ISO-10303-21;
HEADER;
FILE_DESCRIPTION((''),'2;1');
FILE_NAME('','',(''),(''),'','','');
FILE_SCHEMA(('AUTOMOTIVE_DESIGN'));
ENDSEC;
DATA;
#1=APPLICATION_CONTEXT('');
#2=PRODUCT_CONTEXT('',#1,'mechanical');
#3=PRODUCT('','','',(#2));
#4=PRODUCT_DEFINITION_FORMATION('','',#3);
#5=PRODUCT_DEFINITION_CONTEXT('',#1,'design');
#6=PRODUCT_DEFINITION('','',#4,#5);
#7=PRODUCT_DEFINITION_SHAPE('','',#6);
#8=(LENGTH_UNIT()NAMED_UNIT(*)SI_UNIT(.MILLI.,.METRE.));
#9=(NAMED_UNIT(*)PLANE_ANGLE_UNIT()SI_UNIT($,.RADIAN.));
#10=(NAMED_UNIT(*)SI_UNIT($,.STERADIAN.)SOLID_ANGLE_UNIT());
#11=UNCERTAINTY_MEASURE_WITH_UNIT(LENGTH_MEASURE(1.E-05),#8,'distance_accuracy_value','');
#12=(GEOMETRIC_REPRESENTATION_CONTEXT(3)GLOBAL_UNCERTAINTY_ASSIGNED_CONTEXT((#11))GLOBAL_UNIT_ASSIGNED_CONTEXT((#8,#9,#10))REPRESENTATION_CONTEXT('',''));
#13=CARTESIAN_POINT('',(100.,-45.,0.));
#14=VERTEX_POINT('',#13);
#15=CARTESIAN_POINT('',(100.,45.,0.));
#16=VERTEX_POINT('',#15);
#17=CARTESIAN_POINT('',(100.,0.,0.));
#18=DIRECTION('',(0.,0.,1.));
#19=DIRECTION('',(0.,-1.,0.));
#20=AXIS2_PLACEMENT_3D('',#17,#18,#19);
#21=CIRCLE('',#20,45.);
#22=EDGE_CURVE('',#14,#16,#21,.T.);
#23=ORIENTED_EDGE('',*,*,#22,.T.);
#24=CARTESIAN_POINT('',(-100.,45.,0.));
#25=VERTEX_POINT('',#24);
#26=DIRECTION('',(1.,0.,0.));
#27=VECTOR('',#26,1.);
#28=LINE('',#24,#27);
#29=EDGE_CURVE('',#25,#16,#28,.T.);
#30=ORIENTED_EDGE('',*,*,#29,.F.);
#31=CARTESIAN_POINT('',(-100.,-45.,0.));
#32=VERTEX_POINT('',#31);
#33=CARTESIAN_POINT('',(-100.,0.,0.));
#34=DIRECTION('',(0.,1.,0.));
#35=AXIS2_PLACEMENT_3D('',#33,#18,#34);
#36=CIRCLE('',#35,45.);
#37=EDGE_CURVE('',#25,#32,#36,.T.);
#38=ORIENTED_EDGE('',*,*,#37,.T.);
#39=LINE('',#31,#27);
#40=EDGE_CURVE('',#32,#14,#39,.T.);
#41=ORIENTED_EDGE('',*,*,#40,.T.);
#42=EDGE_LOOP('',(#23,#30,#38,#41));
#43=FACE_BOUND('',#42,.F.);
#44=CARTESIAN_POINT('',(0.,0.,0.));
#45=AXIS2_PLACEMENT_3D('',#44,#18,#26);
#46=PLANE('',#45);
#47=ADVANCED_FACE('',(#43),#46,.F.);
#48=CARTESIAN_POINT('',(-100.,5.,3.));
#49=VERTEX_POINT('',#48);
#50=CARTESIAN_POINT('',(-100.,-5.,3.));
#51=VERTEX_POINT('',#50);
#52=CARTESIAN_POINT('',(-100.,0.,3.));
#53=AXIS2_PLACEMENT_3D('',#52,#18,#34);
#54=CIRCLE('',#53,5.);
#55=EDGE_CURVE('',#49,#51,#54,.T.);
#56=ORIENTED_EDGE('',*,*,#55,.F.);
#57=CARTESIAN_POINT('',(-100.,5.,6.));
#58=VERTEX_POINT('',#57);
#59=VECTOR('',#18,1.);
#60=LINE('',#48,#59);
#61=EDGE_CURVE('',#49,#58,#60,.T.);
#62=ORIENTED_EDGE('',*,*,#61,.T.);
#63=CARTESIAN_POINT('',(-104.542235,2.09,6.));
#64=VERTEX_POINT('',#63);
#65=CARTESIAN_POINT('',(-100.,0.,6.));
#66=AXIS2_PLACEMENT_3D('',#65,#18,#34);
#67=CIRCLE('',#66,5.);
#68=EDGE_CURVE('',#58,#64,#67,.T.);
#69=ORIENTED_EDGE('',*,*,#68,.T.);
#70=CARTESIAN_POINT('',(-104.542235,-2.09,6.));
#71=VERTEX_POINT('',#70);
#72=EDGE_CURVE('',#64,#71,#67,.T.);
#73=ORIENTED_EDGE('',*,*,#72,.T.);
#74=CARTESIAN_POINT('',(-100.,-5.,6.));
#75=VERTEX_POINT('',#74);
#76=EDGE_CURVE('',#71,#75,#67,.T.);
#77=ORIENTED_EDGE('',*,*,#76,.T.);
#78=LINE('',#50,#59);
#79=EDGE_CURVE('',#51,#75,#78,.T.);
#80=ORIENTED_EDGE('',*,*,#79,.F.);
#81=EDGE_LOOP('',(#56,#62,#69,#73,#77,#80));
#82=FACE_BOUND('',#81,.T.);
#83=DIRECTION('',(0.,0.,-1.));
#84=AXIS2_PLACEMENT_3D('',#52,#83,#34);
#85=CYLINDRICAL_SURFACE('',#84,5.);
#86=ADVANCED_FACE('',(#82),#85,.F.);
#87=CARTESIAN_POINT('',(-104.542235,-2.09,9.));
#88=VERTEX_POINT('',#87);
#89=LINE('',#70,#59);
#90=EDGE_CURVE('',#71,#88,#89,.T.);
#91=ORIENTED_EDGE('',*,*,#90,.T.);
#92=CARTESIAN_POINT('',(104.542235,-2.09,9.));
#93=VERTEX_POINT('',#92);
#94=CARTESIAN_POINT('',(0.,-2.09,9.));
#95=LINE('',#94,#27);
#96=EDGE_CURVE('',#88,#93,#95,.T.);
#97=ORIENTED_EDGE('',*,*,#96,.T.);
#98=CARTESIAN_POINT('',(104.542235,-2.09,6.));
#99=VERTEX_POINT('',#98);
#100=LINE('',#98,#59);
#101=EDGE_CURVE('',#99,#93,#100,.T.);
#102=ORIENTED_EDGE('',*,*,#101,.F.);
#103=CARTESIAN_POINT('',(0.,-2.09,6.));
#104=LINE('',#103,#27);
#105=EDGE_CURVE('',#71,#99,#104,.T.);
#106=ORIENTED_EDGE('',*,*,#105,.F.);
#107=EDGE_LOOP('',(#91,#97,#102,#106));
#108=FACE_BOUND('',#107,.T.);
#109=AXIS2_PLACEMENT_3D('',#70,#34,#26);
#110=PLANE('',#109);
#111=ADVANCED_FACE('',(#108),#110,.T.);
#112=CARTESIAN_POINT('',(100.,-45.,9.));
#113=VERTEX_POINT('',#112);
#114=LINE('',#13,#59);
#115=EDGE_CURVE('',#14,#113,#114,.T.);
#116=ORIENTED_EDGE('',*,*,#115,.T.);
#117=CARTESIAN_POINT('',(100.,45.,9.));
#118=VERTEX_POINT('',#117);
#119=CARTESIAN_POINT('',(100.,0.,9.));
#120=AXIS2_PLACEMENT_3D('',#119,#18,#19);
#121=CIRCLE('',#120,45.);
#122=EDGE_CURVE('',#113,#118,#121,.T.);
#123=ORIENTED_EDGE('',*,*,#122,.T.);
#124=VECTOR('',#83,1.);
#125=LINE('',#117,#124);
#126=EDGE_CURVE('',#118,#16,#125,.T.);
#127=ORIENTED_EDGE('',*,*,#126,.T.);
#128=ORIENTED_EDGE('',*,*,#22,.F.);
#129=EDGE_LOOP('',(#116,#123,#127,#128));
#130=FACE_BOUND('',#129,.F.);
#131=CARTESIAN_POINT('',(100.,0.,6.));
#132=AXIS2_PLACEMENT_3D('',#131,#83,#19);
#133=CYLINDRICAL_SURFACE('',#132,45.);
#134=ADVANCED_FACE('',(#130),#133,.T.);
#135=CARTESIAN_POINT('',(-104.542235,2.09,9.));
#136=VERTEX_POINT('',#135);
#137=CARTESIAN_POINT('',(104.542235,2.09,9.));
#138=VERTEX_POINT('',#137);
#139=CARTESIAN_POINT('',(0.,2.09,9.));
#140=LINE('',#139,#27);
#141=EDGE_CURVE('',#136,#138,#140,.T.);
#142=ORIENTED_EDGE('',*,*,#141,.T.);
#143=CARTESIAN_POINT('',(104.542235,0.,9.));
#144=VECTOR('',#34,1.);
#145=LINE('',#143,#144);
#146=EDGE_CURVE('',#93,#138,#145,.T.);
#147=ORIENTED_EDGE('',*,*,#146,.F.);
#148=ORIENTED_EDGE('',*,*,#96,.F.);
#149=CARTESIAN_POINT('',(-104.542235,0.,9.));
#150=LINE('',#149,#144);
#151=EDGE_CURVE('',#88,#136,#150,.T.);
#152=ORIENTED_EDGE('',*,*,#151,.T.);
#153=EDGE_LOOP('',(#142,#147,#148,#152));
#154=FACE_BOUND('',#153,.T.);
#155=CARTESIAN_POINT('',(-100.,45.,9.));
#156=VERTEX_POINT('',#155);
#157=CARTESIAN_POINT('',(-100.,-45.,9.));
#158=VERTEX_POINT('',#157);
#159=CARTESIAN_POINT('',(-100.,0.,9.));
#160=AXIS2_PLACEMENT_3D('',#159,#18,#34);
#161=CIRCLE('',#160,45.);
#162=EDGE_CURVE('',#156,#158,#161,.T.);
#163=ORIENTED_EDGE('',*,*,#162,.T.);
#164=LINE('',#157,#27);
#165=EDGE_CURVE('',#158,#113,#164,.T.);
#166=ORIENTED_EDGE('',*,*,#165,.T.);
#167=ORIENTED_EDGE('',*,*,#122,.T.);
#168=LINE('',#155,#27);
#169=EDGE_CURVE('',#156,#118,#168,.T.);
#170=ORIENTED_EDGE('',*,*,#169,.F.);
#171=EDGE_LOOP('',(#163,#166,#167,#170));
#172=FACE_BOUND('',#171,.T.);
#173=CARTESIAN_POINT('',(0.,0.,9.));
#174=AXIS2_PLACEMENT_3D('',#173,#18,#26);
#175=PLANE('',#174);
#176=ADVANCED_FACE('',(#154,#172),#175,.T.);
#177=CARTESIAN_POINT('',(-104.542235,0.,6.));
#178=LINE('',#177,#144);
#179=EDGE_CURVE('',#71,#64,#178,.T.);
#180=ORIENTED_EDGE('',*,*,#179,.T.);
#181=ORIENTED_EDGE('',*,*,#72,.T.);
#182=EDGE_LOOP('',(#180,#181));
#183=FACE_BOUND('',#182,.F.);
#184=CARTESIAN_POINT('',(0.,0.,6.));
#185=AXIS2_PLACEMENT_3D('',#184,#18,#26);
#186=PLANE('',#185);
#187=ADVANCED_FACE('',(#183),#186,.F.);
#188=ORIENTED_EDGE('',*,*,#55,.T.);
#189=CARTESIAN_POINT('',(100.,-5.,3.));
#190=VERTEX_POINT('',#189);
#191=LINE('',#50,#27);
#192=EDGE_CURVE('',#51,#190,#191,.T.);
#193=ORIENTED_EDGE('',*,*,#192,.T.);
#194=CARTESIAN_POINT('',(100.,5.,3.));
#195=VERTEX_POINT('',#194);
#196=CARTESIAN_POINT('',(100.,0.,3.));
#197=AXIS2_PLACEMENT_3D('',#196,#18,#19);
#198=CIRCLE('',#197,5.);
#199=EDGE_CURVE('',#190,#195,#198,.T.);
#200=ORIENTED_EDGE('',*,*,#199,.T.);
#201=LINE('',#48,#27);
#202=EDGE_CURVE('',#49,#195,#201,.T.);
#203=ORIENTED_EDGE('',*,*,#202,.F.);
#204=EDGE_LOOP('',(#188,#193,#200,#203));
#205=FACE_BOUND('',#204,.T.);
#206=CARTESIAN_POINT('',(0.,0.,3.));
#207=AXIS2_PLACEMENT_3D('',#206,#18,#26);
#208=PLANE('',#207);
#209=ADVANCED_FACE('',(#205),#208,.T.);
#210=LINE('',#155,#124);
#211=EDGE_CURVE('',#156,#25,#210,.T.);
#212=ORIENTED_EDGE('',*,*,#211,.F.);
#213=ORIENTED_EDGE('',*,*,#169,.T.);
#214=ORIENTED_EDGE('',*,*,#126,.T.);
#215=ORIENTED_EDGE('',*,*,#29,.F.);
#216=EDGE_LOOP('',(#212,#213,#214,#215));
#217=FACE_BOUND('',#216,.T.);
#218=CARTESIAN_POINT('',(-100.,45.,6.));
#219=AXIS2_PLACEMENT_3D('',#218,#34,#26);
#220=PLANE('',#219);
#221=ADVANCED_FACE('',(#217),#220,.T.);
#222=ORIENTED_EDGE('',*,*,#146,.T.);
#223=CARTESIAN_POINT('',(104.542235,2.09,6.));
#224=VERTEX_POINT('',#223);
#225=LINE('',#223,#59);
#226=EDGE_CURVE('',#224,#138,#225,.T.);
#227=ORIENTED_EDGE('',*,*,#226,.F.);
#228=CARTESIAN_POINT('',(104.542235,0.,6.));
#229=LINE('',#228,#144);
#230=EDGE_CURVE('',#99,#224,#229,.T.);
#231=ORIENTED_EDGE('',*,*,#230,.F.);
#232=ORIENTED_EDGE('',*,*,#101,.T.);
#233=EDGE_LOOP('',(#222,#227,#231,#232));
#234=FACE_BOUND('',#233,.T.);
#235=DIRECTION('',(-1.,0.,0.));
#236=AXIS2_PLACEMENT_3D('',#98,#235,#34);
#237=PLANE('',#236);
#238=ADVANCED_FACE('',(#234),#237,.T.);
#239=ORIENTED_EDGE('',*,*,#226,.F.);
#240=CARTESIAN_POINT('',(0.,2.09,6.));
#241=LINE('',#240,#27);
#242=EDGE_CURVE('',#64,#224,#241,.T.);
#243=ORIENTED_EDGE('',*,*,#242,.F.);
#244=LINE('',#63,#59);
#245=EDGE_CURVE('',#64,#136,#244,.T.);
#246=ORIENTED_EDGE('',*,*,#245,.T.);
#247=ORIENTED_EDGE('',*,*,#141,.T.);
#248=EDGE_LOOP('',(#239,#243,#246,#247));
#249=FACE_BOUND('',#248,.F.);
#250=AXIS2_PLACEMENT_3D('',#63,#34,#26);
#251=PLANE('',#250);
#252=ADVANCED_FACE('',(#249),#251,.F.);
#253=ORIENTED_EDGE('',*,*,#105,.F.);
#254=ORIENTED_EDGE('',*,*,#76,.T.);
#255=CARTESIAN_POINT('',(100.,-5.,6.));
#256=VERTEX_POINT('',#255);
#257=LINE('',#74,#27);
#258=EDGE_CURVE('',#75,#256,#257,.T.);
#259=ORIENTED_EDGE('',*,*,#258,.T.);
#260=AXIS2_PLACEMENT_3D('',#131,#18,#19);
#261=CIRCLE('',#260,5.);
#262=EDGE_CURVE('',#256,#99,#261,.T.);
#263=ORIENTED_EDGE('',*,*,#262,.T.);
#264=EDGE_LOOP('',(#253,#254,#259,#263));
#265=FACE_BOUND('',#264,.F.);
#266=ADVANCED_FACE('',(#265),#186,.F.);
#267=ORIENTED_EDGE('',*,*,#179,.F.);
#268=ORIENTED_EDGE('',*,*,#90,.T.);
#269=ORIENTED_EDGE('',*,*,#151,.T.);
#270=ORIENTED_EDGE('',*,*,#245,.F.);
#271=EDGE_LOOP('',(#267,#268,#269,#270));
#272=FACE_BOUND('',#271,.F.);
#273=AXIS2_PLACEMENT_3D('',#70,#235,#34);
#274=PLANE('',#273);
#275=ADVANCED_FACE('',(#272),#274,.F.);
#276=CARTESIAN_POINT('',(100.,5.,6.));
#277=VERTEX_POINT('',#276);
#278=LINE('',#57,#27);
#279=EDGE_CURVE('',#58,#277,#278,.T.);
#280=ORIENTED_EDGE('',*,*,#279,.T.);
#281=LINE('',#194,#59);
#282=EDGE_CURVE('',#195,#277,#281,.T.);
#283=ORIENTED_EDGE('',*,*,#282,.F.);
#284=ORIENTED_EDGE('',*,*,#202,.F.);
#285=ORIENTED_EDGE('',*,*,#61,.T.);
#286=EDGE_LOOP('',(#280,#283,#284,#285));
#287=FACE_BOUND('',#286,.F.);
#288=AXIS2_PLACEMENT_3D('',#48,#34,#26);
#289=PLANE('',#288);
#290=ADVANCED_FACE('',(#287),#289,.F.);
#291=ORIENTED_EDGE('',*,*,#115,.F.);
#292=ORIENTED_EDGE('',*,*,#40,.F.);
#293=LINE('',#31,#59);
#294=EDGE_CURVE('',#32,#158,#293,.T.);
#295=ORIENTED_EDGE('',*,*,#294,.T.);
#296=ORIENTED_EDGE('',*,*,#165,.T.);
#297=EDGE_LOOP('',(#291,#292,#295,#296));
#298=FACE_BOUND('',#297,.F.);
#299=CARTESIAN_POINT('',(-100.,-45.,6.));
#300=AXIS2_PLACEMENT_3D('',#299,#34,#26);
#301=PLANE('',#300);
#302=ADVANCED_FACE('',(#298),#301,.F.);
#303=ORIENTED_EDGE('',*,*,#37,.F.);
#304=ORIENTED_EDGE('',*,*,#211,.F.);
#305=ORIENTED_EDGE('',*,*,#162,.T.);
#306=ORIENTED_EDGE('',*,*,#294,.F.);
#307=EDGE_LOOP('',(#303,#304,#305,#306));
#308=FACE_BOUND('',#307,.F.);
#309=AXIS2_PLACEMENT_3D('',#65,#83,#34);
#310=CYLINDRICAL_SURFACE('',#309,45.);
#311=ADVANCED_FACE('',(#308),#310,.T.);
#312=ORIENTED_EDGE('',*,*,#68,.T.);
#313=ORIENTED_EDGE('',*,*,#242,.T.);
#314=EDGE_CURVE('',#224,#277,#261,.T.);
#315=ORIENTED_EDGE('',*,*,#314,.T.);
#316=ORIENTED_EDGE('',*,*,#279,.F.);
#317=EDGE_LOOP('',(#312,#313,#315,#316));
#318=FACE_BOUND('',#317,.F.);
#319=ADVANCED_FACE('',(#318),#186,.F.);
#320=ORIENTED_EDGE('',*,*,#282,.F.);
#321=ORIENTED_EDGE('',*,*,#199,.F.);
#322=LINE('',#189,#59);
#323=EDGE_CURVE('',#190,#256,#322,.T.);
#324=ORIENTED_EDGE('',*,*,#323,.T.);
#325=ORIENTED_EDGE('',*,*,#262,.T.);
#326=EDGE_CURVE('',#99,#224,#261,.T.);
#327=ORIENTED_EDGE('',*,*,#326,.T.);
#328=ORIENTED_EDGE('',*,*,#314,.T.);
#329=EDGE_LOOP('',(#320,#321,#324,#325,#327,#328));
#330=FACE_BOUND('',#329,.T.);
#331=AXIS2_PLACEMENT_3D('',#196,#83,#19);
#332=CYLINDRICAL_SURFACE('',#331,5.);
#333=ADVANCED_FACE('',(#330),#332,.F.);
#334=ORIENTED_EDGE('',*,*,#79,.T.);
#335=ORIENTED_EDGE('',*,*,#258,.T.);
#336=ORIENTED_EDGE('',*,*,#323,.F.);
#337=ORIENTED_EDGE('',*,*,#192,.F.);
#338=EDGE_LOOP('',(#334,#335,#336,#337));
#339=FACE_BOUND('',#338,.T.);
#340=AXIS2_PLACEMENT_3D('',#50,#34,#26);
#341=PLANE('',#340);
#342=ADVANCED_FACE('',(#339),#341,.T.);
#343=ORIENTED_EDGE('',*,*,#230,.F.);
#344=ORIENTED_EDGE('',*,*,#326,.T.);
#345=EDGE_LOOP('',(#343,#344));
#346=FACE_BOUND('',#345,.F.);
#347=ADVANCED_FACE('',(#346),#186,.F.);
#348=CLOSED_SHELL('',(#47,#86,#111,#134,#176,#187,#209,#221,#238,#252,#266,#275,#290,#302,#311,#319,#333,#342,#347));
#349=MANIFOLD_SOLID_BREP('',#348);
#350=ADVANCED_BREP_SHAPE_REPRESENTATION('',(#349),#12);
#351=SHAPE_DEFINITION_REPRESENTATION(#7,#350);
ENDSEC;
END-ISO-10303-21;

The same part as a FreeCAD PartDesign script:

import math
import FreeCAD as App
import Part
import Sketcher
from FreeCAD import Vector
Q = App.Units.Quantity


def add_polygon(sketch, points):
    """Adds a closed chain of lines whose ends are joined by coincident constraints."""
    first, n = sketch.GeometryCount, len(points)
    for a, b in zip(points, points[1:] + points[:1]):
        sketch.addGeometry(Part.LineSegment(App.Vector(*a, 0), App.Vector(*b, 0)), False)
    for i in range(n):
        sketch.addConstraint(Sketcher.Constraint("Coincident", first + i, 2, first + (i + 1) % n, 1))

doc = App.newDocument("Part")
body = doc.addObject("PartDesign::Body", "Body")

sketch1 = doc.addObject("Sketcher::SketchObject", "Sketch")
body.addObject(sketch1)
sketch1.AttachmentSupport = (doc.XY_Plane, [""])
sketch1.MapMode = "FlatFace"
sketch1.addGeometry([
    Part.ArcOfCircle(Part.Circle(Vector(-100, 0, 0), Vector(0, 0, 1), 45), math.radians(90), math.radians(270)),
    Part.LineSegment(Vector(-100, -45, 0), Vector(100, -45, 0)),
    Part.ArcOfCircle(Part.Circle(Vector(100, 0, 0), Vector(0, 0, 1), 45), math.radians(-90), math.radians(90)),
    Part.LineSegment(Vector(100, 45, 0), Vector(-100, 45, 0)),
], False)
sketch1.addConstraint([
    Sketcher.Constraint("Tangent", 0, 2, 1, 1),
    Sketcher.Constraint("Tangent", 1, 2, 2, 1),
    Sketcher.Constraint("Tangent", 2, 2, 3, 1),
    Sketcher.Constraint("Tangent", 3, 2, 0, 1),
    Sketcher.Constraint("Horizontal", 1),
    Sketcher.Constraint("Horizontal", 3),
    Sketcher.Constraint("Symmetric", 0, 3, 2, 3, -1, 1),
    Sketcher.Constraint("Radius", 0, Q("45 mm")),
    Sketcher.Constraint("DistanceX", 1, 1, 1, 2, Q("200 mm")),
])
pad1 = doc.addObject("PartDesign::Pad", "Pad")
body.addObject(pad1)
pad1.Profile = sketch1
pad1.Length = 3

sketch2 = doc.addObject("Sketcher::SketchObject", "Sketch001")
body.addObject(sketch2)
sketch2.AttachmentSupport = (doc.XY_Plane, [""])
sketch2.MapMode = "FlatFace"
sketch2.AttachmentOffset = App.Placement(Vector(0, 0, 3), App.Rotation())
sketch2.addGeometry([
    Part.ArcOfCircle(Part.Circle(Vector(-100, 0, 0), Vector(0, 0, 1), 45), math.radians(90), math.radians(270)),
    Part.LineSegment(Vector(-100, -45, 0), Vector(100, -45, 0)),
    Part.ArcOfCircle(Part.Circle(Vector(100, 0, 0), Vector(0, 0, 1), 45), math.radians(-90), math.radians(90)),
    Part.LineSegment(Vector(100, 45, 0), Vector(-100, 45, 0)),
    Part.ArcOfCircle(Part.Circle(Vector(-100, 0, 0), Vector(0, 0, 1), 5), math.radians(90), math.radians(270)),
    Part.LineSegment(Vector(-100, 5, 0), Vector(100, 5, 0)),
    Part.ArcOfCircle(Part.Circle(Vector(100, 0, 0), Vector(0, 0, 1), 5), math.radians(-90), math.radians(90)),
    Part.LineSegment(Vector(100, -5, 0), Vector(-100, -5, 0)),
], False)
sketch2.addConstraint([
    Sketcher.Constraint("Tangent", 0, 2, 1, 1),
    Sketcher.Constraint("Tangent", 1, 2, 2, 1),
    Sketcher.Constraint("Tangent", 2, 2, 3, 1),
    Sketcher.Constraint("Tangent", 3, 2, 0, 1),
    Sketcher.Constraint("Tangent", 4, 1, 5, 1),
    Sketcher.Constraint("Tangent", 5, 2, 6, 2),
    Sketcher.Constraint("Tangent", 6, 1, 7, 1),
    Sketcher.Constraint("Tangent", 7, 2, 4, 2),
    Sketcher.Constraint("Horizontal", 1),
    Sketcher.Constraint("Horizontal", 3),
    Sketcher.Constraint("Horizontal", 5),
    Sketcher.Constraint("Horizontal", 7),
    Sketcher.Constraint("Coincident", 4, 3, 0, 3),
    Sketcher.Constraint("Symmetric", 0, 3, 2, 3, -1, 1),
    Sketcher.Constraint("Vertical", 6, 3, 1, 2),
    Sketcher.Constraint("Radius", 0, Q("45 mm")),
    Sketcher.Constraint("Radius", 4, Q("5 mm")),
    Sketcher.Constraint("DistanceX", 1, 1, 1, 2, Q("200 mm")),
])
pad2 = doc.addObject("PartDesign::Pad", "Pad001")
body.addObject(pad2)
pad2.Profile = sketch2
pad2.Length = 3

sketch3 = doc.addObject("Sketcher::SketchObject", "Sketch002")
body.addObject(sketch3)
sketch3.AttachmentSupport = (doc.XY_Plane, [""])
sketch3.MapMode = "FlatFace"
sketch3.AttachmentOffset = App.Placement(Vector(0, 0, 6), App.Rotation())
sketch3.addGeometry(Part.ArcOfCircle(Part.Circle(Vector(-100, 0, 0), Vector(0, 0, 1), 45), math.radians(90), math.radians(270)), False)
sketch3.addGeometry(Part.LineSegment(Vector(-100, -45, 0), Vector(100, -45, 0)), False)
sketch3.addGeometry(Part.ArcOfCircle(Part.Circle(Vector(100, 0, 0), Vector(0, 0, 1), 45), math.radians(-90), math.radians(90)), False)
sketch3.addGeometry(Part.LineSegment(Vector(100, 45, 0), Vector(-100, 45, 0)), False)
add_polygon(sketch3, [(104.5, -2.1), (-104.5, -2.1), (-104.5, 2.1), (104.5, 2.1)])
sketch3.addConstraint([
    Sketcher.Constraint("Tangent", 0, 2, 1, 1),
    Sketcher.Constraint("Tangent", 1, 2, 2, 1),
    Sketcher.Constraint("Tangent", 2, 2, 3, 1),
    Sketcher.Constraint("Tangent", 3, 2, 0, 1),
    Sketcher.Constraint("Horizontal", 1),
    Sketcher.Constraint("Horizontal", 3),
    Sketcher.Constraint("Horizontal", 4),
    Sketcher.Constraint("Vertical", 5),
    Sketcher.Constraint("Horizontal", 6),
    Sketcher.Constraint("Vertical", 7),
    Sketcher.Constraint("Symmetric", 0, 3, 2, 3, -1, 1),
    Sketcher.Constraint("Symmetric", 4, 2, 6, 2, -1, 1),
    Sketcher.Constraint("Radius", 0, Q("45 mm")),
    Sketcher.Constraint("DistanceX", 1, 1, 1, 2, Q("200 mm")),
    Sketcher.Constraint("DistanceY", 5, 1, 5, 2, Q("4.18 mm")),
    Sketcher.Constraint("DistanceX", 4, 2, 4, 1, Q("209.08447 mm")),
])
pad3 = doc.addObject("PartDesign::Pad", "Pad002")
body.addObject(pad3)
pad3.Profile = sketch3
pad3.Length = 3

doc.recompute()
